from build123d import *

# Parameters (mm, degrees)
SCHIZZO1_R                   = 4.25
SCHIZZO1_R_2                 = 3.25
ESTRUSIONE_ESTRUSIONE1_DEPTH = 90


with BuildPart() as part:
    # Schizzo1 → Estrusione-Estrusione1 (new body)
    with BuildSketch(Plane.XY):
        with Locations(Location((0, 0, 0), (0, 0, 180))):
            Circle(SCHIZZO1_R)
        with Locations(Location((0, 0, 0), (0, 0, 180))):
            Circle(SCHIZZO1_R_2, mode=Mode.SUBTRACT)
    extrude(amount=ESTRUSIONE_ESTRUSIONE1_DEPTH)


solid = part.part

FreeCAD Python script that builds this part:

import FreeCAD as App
import Part
import Sketcher
Q = App.Units.Quantity

doc = App.newDocument("Part")
params = doc.addObject("Spreadsheet::Sheet", "Params")
for row, (alias, value) in enumerate([
    ("sketch1_diameter", "8.5 mm"),
    ("sketch1_diameter2", "6.5 mm"),
    ("pad1_length", "90 mm"),
], start=1):
    params.set(f"A{row}", alias)
    params.set(f"B{row}", "=" + value)
    params.setAlias(f"B{row}", alias)

body = doc.addObject("PartDesign::Body", "Body")

# Sketch on XY plane
sketch1 = body.newObject("Sketcher::SketchObject", "Sketch")
sketch1.AttachmentSupport = (doc.getObject("XY_Plane"), [""])
sketch1.MapMode = "FlatFace"
sketch1.addGeometry([
    Part.Circle(App.Vector(0, 0, 0), App.Vector(0, 0, 1), 4.2),
    Part.Circle(App.Vector(0, 0, 0), App.Vector(0, 0, 1), 3.2),
], False)
sketch1.addConstraint([
    Sketcher.Constraint("Coincident", 0, 3, -1, 1),
    Sketcher.Constraint("Coincident", 1, 3, -1, 1),
    Sketcher.Constraint("Diameter", 0, Q("8.5 mm")),
    Sketcher.Constraint("Diameter", 1, Q("6.5 mm")),
])
sketch1.setExpression("Constraints[2]", "Params.sketch1_diameter")
sketch1.setExpression("Constraints[3]", "Params.sketch1_diameter2")
pad1 = body.newObject("PartDesign::Pad", "Pad")
pad1.Profile = sketch1
pad1.setExpression("Length", "Params.pad1_length")

doc.recompute()
